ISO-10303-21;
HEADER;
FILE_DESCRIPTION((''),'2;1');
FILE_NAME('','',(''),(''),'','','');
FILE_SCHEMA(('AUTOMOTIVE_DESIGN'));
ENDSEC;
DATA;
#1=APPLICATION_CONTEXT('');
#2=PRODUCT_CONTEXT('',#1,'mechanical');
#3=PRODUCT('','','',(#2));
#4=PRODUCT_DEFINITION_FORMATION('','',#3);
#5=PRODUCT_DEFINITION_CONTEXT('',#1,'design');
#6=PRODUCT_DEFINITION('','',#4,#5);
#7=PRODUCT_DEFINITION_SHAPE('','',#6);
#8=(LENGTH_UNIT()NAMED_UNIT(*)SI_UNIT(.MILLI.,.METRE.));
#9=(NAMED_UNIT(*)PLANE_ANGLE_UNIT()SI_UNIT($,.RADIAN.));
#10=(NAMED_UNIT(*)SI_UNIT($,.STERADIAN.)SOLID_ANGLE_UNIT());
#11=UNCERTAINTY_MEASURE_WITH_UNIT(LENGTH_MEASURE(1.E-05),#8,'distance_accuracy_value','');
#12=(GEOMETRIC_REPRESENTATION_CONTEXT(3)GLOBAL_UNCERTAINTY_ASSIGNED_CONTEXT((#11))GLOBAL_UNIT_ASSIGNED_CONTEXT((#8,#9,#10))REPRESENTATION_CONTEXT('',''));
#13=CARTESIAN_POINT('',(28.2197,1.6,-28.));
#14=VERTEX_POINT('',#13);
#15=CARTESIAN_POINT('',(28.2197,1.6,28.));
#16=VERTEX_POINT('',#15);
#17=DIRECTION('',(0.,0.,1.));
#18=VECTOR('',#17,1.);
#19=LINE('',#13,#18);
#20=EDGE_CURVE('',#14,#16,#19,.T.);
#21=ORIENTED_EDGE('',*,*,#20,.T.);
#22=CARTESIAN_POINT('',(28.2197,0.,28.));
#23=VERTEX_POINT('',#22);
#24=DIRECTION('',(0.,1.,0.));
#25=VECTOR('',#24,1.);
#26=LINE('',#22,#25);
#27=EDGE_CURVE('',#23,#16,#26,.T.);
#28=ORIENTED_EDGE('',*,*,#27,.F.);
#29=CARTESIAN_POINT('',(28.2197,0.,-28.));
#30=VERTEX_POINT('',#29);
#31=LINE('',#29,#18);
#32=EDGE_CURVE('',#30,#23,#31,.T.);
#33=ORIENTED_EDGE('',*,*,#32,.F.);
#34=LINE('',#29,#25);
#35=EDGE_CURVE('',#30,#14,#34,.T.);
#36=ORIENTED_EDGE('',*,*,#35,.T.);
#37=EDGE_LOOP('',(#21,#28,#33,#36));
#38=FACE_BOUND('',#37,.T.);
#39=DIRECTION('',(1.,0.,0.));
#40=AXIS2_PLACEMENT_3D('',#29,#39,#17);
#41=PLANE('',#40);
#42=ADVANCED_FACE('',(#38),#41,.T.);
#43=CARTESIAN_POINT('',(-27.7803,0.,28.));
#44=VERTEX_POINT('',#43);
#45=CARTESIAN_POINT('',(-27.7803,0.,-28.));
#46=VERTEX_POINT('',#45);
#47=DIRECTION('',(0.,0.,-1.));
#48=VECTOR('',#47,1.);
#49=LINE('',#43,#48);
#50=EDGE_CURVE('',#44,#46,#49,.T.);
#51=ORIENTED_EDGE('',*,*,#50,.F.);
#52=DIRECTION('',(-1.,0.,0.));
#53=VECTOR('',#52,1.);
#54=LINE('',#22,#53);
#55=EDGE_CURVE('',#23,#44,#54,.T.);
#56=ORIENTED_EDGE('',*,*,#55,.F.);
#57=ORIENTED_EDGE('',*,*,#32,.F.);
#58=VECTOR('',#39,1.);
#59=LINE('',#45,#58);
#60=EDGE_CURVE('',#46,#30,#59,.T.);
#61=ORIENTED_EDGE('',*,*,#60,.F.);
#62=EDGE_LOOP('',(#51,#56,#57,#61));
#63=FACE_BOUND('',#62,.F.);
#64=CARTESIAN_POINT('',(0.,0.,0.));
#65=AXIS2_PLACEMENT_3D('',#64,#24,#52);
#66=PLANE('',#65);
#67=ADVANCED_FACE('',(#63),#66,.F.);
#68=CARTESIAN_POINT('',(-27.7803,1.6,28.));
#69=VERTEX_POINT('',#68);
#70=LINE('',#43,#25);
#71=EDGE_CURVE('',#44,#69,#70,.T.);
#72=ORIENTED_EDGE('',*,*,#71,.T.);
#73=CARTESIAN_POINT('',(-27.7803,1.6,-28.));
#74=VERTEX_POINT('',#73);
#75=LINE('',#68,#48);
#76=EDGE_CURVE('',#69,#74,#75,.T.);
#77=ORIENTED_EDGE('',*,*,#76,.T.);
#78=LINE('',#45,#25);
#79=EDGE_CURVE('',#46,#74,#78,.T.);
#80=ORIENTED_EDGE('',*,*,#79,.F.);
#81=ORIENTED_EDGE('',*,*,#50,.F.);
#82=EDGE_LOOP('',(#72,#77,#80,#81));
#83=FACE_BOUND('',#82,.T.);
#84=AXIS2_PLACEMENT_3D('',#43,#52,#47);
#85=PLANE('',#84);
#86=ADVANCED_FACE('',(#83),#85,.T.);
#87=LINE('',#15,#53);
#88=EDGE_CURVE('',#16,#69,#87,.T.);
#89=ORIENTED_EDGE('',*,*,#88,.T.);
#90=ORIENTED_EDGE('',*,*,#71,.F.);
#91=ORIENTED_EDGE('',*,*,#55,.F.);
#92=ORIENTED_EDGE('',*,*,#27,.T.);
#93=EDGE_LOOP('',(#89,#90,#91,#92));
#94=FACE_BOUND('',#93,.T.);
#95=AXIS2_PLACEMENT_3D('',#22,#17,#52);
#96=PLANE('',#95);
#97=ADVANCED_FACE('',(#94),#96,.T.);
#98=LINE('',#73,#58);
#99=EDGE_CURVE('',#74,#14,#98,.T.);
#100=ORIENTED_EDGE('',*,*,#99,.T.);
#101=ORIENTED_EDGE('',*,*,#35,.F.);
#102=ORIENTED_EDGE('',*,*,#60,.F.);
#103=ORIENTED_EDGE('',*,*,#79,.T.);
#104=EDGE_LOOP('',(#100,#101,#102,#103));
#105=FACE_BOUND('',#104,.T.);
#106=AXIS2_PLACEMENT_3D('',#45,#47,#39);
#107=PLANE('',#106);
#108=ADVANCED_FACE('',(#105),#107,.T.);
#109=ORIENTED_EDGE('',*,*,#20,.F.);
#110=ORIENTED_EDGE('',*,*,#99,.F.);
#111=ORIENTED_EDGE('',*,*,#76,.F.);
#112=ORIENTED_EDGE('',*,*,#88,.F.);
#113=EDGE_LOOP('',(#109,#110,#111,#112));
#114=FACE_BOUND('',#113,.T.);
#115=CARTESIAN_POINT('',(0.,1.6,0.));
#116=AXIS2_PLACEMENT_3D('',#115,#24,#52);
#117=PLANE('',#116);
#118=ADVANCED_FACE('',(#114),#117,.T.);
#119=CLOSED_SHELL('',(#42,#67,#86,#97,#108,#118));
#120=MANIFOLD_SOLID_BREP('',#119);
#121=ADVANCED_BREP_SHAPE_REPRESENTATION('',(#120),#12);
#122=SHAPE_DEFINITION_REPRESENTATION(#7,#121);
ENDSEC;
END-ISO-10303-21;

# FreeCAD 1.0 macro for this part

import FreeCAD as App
import Part
import Sketcher
Q = App.Units.Quantity

doc = App.newDocument("Part")
body = doc.addObject("PartDesign::Body", "Body")

# Sketch on XZ plane
sketch1 = body.newObject("Sketcher::SketchObject", "Sketch")
sketch1.AttachmentSupport = (doc.getObject("XZ_Plane"), [""])
sketch1.MapMode = "FlatFace"
sketch1.addGeometry(Part.LineSegment(App.Vector(-27.7803, 28, 0), App.Vector(28.2197, 28, 0)), False)
sketch1.addGeometry(Part.LineSegment(App.Vector(28.2197, 28, 0), App.Vector(28.2197, -28, 0)), False)
sketch1.addGeometry(Part.LineSegment(App.Vector(28.2197, -28, 0), App.Vector(-27.7803, -28, 0)), False)
sketch1.addGeometry(Part.LineSegment(App.Vector(-27.7803, -28, 0), App.Vector(-27.7803, 28, 0)), False)
sketch1.addConstraint(Sketcher.Constraint("Coincident", 0, 2, 1, 1))
sketch1.addConstraint(Sketcher.Constraint("Coincident", 1, 2, 2, 1))
sketch1.addConstraint(Sketcher.Constraint("Coincident", 2, 2, 3, 1))
sketch1.addConstraint(Sketcher.Constraint("Coincident", 3, 2, 0, 1))
sketch1.addConstraint(Sketcher.Constraint("Horizontal", 0))
sketch1.addConstraint(Sketcher.Constraint("Vertical", 1))
sketch1.addConstraint(Sketcher.Constraint("Horizontal", 2))
sketch1.addConstraint(Sketcher.Constraint("Vertical", 3))
sketch1.addConstraint(Sketcher.Constraint("Equal", 2, 1))
sketch1.addConstraint(Sketcher.Constraint("DistanceX", 0, 1, 0, 2, Q("56 mm")))
sketch1.addConstraint(Sketcher.Constraint("DistanceY", -1, 1, 0, 2, Q("28 mm")))
sketch1.addConstraint(Sketcher.Constraint("DistanceX", -1, 1, 0, 2, Q("28.2197 mm")))
pad1 = body.newObject("PartDesign::Pad", "Pad")
pad1.Profile = sketch1
pad1.Length = 1.6
pad1.Reversed = True

doc.recompute()
